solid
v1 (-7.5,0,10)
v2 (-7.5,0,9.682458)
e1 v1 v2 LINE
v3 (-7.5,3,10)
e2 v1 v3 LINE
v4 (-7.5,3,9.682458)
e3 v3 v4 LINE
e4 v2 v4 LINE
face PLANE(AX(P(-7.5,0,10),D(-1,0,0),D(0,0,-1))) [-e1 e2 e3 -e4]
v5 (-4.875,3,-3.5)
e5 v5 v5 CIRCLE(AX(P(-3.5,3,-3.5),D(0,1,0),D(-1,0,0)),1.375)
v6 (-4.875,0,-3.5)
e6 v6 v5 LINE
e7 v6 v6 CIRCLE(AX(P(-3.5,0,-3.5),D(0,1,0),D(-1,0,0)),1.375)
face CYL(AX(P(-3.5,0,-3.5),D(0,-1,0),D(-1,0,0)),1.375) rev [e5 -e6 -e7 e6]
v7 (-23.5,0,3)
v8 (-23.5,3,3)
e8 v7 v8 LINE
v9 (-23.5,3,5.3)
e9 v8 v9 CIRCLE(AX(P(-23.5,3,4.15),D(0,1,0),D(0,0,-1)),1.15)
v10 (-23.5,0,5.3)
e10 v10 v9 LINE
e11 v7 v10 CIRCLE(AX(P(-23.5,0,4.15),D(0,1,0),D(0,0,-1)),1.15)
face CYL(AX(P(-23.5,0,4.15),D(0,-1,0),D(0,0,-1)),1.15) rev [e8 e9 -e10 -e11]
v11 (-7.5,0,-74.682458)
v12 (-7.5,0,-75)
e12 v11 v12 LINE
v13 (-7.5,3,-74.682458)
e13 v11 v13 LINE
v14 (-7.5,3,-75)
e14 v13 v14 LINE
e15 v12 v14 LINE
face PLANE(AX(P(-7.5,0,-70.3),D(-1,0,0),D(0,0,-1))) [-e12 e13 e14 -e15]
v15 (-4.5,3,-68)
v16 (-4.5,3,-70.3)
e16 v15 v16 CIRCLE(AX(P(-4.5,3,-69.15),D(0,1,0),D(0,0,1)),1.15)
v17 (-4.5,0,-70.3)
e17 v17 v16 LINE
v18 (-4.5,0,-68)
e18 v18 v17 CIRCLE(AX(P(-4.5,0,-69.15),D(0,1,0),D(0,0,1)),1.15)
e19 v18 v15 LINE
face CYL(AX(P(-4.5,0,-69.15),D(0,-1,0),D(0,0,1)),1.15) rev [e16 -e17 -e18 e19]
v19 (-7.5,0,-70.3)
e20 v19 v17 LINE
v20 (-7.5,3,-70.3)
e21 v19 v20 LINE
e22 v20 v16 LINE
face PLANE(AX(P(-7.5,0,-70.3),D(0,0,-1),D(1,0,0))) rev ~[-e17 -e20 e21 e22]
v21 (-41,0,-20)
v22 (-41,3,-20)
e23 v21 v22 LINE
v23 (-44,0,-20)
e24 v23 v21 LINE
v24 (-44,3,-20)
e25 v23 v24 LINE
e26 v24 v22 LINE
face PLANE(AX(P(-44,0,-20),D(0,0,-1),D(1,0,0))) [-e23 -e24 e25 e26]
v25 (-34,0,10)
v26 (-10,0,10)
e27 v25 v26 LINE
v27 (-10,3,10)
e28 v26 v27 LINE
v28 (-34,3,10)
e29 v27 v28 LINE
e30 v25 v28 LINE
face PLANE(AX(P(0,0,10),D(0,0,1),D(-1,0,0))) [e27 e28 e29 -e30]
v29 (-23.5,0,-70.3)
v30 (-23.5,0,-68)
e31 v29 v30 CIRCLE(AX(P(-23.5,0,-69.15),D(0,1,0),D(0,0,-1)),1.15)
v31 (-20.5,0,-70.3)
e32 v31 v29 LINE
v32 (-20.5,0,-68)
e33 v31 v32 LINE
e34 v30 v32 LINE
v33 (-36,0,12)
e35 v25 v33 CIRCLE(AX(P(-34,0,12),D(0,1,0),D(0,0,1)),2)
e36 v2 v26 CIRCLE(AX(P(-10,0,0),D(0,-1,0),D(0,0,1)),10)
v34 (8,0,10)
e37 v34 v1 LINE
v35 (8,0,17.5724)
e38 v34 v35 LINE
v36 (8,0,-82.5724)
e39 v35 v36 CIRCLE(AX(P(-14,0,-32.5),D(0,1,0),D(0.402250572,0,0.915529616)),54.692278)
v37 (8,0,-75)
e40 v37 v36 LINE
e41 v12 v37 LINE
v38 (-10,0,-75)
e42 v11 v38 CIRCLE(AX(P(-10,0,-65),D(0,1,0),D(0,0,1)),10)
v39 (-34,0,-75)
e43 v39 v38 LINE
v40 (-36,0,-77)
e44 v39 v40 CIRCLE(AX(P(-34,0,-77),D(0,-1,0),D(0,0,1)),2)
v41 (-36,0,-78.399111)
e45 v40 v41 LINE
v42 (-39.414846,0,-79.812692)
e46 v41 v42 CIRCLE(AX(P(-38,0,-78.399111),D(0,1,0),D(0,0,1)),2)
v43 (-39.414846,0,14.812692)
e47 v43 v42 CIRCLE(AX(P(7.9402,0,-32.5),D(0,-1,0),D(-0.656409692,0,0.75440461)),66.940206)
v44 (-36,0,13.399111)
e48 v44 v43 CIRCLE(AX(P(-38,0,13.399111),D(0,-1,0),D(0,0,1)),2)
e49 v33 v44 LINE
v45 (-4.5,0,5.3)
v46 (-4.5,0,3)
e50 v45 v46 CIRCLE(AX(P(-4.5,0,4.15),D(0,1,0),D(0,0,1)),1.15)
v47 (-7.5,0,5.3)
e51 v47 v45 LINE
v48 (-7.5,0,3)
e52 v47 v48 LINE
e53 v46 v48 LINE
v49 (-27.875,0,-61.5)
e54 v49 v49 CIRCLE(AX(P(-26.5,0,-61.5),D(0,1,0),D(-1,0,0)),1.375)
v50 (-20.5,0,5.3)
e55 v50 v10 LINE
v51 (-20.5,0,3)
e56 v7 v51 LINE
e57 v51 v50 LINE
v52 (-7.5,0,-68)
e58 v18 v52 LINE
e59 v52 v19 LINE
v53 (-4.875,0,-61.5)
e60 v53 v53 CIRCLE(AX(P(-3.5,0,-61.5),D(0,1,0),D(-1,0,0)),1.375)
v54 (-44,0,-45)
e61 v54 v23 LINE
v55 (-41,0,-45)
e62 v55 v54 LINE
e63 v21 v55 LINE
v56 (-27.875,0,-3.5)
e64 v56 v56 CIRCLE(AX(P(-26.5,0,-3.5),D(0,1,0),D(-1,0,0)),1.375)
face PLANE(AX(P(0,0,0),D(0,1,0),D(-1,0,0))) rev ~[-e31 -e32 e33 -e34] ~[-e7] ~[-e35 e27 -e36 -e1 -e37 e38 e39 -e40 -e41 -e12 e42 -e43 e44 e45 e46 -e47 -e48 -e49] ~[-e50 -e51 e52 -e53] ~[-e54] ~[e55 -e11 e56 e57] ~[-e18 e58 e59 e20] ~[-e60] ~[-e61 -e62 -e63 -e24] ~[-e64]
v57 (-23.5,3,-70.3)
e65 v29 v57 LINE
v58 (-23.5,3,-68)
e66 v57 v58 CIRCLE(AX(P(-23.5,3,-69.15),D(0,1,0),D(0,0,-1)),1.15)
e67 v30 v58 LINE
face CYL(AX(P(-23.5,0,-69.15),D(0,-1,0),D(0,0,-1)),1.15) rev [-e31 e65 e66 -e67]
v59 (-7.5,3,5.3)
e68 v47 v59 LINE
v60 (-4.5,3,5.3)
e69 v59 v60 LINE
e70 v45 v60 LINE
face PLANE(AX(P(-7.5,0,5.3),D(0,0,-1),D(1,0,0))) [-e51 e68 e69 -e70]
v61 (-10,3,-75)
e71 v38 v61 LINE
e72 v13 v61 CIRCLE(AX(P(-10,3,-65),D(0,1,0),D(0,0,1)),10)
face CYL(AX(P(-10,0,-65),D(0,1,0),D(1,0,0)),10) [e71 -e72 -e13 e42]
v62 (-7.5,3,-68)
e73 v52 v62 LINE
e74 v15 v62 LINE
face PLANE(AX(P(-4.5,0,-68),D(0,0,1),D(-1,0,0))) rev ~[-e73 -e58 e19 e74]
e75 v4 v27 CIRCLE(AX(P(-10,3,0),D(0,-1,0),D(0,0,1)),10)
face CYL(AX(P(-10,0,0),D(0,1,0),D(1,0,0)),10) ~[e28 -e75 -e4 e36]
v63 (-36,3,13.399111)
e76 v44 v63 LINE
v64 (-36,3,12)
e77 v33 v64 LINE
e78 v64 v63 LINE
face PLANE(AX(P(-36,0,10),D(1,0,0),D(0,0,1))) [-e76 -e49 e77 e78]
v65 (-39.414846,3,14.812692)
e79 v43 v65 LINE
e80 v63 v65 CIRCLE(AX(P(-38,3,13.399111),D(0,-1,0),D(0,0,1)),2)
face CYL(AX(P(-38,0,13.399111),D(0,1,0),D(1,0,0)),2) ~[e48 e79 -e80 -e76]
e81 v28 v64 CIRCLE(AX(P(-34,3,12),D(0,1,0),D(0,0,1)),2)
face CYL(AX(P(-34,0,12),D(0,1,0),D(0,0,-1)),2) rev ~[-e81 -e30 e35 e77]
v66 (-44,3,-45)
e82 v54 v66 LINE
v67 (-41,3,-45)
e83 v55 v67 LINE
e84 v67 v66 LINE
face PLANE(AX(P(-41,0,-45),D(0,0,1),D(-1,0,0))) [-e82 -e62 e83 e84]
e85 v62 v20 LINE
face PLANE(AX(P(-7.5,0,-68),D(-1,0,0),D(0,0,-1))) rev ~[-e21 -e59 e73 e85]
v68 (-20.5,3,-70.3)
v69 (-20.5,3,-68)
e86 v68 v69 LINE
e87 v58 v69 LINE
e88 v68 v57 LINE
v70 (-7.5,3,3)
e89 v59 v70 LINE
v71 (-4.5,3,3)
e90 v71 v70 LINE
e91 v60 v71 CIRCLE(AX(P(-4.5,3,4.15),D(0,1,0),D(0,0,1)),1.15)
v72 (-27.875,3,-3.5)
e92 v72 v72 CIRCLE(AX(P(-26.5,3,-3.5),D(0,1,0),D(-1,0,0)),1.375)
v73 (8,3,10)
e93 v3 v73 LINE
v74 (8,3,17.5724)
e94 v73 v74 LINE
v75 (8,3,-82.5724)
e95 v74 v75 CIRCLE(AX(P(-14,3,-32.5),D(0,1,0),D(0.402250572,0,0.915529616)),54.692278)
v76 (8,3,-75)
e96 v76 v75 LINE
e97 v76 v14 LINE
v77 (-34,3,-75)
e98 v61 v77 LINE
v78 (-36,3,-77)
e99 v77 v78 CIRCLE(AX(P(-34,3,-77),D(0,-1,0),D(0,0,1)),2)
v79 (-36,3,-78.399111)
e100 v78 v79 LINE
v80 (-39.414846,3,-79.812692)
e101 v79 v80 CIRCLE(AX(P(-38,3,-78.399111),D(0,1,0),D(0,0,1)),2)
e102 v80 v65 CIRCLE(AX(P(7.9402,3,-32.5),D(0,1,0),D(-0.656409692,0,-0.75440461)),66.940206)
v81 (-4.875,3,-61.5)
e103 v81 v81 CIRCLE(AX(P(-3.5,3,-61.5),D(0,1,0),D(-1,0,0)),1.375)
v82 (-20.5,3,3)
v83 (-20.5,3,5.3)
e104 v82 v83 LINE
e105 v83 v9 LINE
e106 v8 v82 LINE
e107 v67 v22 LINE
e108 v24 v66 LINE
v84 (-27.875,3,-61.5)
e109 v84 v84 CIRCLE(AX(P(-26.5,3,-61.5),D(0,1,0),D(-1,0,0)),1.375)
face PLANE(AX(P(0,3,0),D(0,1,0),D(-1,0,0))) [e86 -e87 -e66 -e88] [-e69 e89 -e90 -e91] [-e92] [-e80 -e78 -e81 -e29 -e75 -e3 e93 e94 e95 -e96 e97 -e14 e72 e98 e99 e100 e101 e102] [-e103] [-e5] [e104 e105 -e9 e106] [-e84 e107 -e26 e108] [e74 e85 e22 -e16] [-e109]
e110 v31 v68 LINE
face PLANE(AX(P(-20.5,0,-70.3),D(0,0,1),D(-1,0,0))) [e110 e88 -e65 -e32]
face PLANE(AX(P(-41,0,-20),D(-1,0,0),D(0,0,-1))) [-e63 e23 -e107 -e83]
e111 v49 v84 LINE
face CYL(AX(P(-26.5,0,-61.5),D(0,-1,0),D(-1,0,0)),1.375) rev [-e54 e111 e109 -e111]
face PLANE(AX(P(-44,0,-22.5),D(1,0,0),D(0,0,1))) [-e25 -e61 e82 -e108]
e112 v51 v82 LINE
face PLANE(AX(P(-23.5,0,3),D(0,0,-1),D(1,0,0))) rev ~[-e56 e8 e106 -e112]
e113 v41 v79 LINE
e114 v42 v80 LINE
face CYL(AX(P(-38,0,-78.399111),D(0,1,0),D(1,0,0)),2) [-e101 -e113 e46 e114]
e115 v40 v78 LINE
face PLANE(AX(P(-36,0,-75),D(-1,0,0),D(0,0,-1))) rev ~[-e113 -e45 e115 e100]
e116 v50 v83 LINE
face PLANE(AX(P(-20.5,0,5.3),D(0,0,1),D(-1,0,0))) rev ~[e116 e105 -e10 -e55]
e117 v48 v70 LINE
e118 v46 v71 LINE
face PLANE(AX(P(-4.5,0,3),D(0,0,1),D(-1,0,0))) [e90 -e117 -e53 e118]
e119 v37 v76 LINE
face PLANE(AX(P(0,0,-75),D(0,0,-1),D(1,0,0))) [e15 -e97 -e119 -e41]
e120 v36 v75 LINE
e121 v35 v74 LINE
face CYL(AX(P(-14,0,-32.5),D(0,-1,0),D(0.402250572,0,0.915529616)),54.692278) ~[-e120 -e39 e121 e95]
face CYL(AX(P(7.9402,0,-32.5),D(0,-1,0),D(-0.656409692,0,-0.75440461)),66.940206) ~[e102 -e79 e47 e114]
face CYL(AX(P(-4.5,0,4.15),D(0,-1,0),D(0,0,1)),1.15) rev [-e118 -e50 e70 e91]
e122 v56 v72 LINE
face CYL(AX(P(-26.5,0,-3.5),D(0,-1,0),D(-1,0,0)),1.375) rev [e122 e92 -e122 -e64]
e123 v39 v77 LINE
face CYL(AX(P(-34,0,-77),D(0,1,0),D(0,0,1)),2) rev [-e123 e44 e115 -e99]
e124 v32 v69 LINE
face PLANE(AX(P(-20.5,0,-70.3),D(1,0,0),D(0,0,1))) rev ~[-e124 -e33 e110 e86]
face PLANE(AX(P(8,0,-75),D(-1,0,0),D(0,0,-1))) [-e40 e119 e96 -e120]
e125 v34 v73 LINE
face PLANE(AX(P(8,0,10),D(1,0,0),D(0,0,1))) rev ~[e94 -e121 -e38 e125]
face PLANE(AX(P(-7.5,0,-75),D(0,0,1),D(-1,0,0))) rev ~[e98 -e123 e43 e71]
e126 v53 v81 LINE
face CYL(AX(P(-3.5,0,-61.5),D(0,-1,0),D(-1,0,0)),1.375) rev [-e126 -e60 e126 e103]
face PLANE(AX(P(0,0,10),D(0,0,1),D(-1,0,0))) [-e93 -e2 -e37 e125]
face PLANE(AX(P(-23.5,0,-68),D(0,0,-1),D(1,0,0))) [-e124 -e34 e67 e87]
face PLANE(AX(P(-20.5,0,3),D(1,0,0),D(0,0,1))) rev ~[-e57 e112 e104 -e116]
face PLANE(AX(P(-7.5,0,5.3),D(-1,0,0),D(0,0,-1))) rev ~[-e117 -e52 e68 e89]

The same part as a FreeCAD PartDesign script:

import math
import FreeCAD as App
import Part
import Sketcher

V = App.Vector


def edges_at(feature, points):
    """Names of the edges that pass closest to the given points."""
    edges = feature.Shape.Edges
    near = lambda p: min(range(len(edges)), key=lambda i: edges[i].distToShape(Part.Vertex(*p))[0])
    return sorted({f"Edge{near(p) + 1}" for p in points})


def add_polygon(sketch, points):
    """Adds a closed chain of lines whose ends are joined by coincident constraints."""
    first, n = sketch.GeometryCount, len(points)
    for a, b in zip(points, points[1:] + points[:1]):
        sketch.addGeometry(Part.LineSegment(App.Vector(*a, 0), App.Vector(*b, 0)), False)
    for i in range(n):
        sketch.addConstraint(Sketcher.Constraint("Coincident", first + i, 2, first + (i + 1) % n, 1))

doc = App.newDocument("Part")
body = doc.addObject("PartDesign::Body", "Body")

# Sketch on XZ plane
sketch1 = body.newObject("Sketcher::SketchObject", "Sketch")
sketch1.AttachmentSupport = (doc.getObject("XZ_Plane"), [""])
sketch1.MapMode = "FlatFace"
sketch1.addGeometry(Part.LineSegment(V(0, 10, 0), V(0, -75, 0)), False)  # 0
sketch1.addGeometry(Part.LineSegment(V(0, -75, 0), V(-36, -75, 0)), False)  # 1
sketch1.addGeometry(Part.LineSegment(V(-36, -75, 0), V(-36, -83, 0)), False)  # 2
sketch1.addGeometry(Part.ArcOfCircle(Part.Circle(V(7.9, -32.5, 0), V(0, 0, 1), 66.9), math.radians(131), math.radians(229)), False)  # 3
sketch1.addGeometry(Part.LineSegment(V(-36, 18, 0), V(-36, 10, 0)), False)  # 4
sketch1.addGeometry(Part.LineSegment(V(-36, 10, 0), V(0, 10, 0)), False)  # 5
sketch1.addGeometry(Part.LineSegment(V(-4.5, 5.3, 0), V(-7.5, 5.3, 0)), False)  # 6
sketch1.addGeometry(Part.LineSegment(V(-7.5, 5.3, 0), V(-7.5, 3, 0)), False)  # 7
sketch1.addGeometry(Part.LineSegment(V(-7.5, 3, 0), V(-4.5, 3, 0)), False)  # 8
sketch1.addGeometry(Part.ArcOfCircle(Part.Circle(V(-4.5, 4.2, 0), V(0, 0, 1), 1.1), math.radians(-90), math.radians(90)), False)  # 9
sketch1.addGeometry(Part.LineSegment(V(-20.5, 3, 0), V(-20.5, 5.3, 0)), False)  # 10
sketch1.addGeometry(Part.LineSegment(V(-20.5, 5.3, 0), V(-23.5, 5.3, 0)), False)  # 11
sketch1.addGeometry(Part.ArcOfCircle(Part.Circle(V(-23.5, 4.2, 0), V(0, 0, 1), 1.2), math.radians(90), math.radians(270)), False)  # 12
sketch1.addGeometry(Part.LineSegment(V(-23.5, 3, 0), V(-20.5, 3, 0)), False)  # 13
sketch1.addGeometry(Part.Circle(V(-3.5, -3.5, 0), V(0, 0, 1), 1.4), False)  # 14
sketch1.addGeometry(Part.Circle(V(-26.5, -3.5, 0), V(0, 0, 1), 1.4), False)  # 15
sketch1.addGeometry(Part.Circle(V(-3.5, -61.5, 0), V(0, 0, 1), 1.4), False)  # 16
add_polygon(sketch1, [(-44, -20), (-44, -22.5), (-41, -22.5), (-41, -20)])  # lines 17-20
sketch1.addGeometry(Part.Circle(V(-26.5, -61.5, 0), V(0, 0, 1), 1.4), False)  # 21
sketch1.addGeometry(Part.LineSegment(V(-20.5, -70.3, 0), V(-20.5, -68, 0)), False)  # 22
sketch1.addGeometry(Part.LineSegment(V(-20.5, -68, 0), V(-23.5, -68, 0)), False)  # 23
sketch1.addGeometry(Part.ArcOfCircle(Part.Circle(V(-23.5, -69.2, 0), V(0, 0, 1), 1.1), math.radians(90), math.radians(270)), False)  # 24
sketch1.addGeometry(Part.LineSegment(V(-23.5, -70.3, 0), V(-20.5, -70.3, 0)), False)  # 25
sketch1.addGeometry(Part.LineSegment(V(-7.5, -68, 0), V(-7.5, -70.3, 0)), False)  # 26
sketch1.addGeometry(Part.LineSegment(V(-7.5, -70.3, 0), V(-4.5, -70.3, 0)), False)  # 27
sketch1.addGeometry(Part.ArcOfCircle(Part.Circle(V(-4.5, -69.2, 0), V(0, 0, 1), 1.2), math.radians(-90), math.radians(90)), False)  # 28
sketch1.addGeometry(Part.LineSegment(V(-4.5, -68, 0), V(-7.5, -68, 0)), False)  # 29
add_polygon(sketch1, [(-41, -45), (-41, -42.5), (-44, -42.5), (-44, -45)])  # lines 30-33
sketch1.addConstraint([
    Sketcher.Constraint("Coincident", 0, 2, 1, 1),
    Sketcher.Constraint("Coincident", 1, 2, 2, 1),
    Sketcher.Constraint("Coincident", 2, 2, 3, 2),
    Sketcher.Constraint("Coincident", 3, 1, 4, 1),
    Sketcher.Constraint("Coincident", 4, 2, 5, 1),
    Sketcher.Constraint("Coincident", 5, 2, 0, 1),
    Sketcher.Constraint("Coincident", 6, 2, 7, 1),
    Sketcher.Constraint("Coincident", 7, 2, 8, 1),
    Sketcher.Constraint("Tangent", 8, 2, 9, 1),
    Sketcher.Constraint("Tangent", 9, 2, 6, 1),
    Sketcher.Constraint("Coincident", 10, 2, 11, 1),
    Sketcher.Constraint("Tangent", 11, 2, 12, 1),
    Sketcher.Constraint("Tangent", 12, 2, 13, 1),
    Sketcher.Constraint("Coincident", 13, 2, 10, 1),
    Sketcher.Constraint("Coincident", 22, 2, 23, 1),
    Sketcher.Constraint("Tangent", 23, 2, 24, 1),
    Sketcher.Constraint("Tangent", 24, 2, 25, 1),
    Sketcher.Constraint("Coincident", 25, 2, 22, 1),
    Sketcher.Constraint("Coincident", 26, 2, 27, 1),
    Sketcher.Constraint("Tangent", 27, 2, 28, 1),
    Sketcher.Constraint("Tangent", 28, 2, 29, 1),
    Sketcher.Constraint("Coincident", 29, 2, 26, 1),
    Sketcher.Constraint("Vertical", 0),
    Sketcher.Constraint("Horizontal", 1),
    Sketcher.Constraint("Vertical", 2),
    Sketcher.Constraint("Vertical", 4),
    Sketcher.Constraint("Horizontal", 5),
    Sketcher.Constraint("Horizontal", 6),
    Sketcher.Constraint("Vertical", 7),
    Sketcher.Constraint("Horizontal", 8),
    Sketcher.Constraint("Vertical", 10),
    Sketcher.Constraint("Horizontal", 11),
    Sketcher.Constraint("Horizontal", 13),
    Sketcher.Constraint("Vertical", 17),
    Sketcher.Constraint("Horizontal", 18),
    Sketcher.Constraint("Vertical", 19),
    Sketcher.Constraint("Horizontal", 20),
    Sketcher.Constraint("Vertical", 22),
    Sketcher.Constraint("Horizontal", 23),
    Sketcher.Constraint("Horizontal", 25),
    Sketcher.Constraint("Vertical", 26),
    Sketcher.Constraint("Horizontal", 27),
    Sketcher.Constraint("Horizontal", 29),
    Sketcher.Constraint("Vertical", 30),
    Sketcher.Constraint("Horizontal", 31),
    Sketcher.Constraint("Vertical", 32),
    Sketcher.Constraint("Horizontal", 33),
    Sketcher.Constraint("Equal", 9, 12),
    Sketcher.Constraint("Equal", 14, 15),
    Sketcher.Constraint("Equal", 15, 16),
    Sketcher.Constraint("Equal", 16, 21),
    Sketcher.Constraint("Equal", 12, 24),
    Sketcher.Constraint("Equal", 24, 28),
    Sketcher.Constraint("PointOnObject", 0, 2, -2),
    Sketcher.Constraint("Horizontal", 9, 3, 12, 3),
    Sketcher.Constraint("Horizontal", 14, 3, 15, 3),
    Sketcher.Constraint("Horizontal", 16, 3, 21, 3),
    Sketcher.Constraint("Horizontal", 24, 3, 28, 3),
    Sketcher.Constraint("Vertical", 14, 3, 16, 3),
    Sketcher.Constraint("Vertical", 15, 3, 21, 3),
    Sketcher.Constraint("Vertical", 12, 3, 24, 3),
    Sketcher.Constraint("Vertical", 9, 3, 28, 3),
    Sketcher.Constraint("Vertical", 2, 2, 3, 1),
    Sketcher.Constraint("Vertical", 13, 2, 22, 2),
    Sketcher.Constraint("Vertical", 7, 2, 26, 2),
    Sketcher.Constraint("Vertical", 19, 2, 30, 2),
    Sketcher.Constraint("Vertical", 20, 2, 31, 2),
    Sketcher.Constraint("Equal", 8, 11),
    Sketcher.Constraint("Equal", 13, 18),
    Sketcher.Constraint("Equal", 2, 4),
    Sketcher.Constraint("Equal", 19, 30),
    Sketcher.Constraint("Diameter", 14, 2.75),
    Sketcher.Constraint("DistanceX", 1, 2, 1, 1, 36.0),
    Sketcher.Constraint("DistanceX", 6, 2, 6, 1, 3.0),
    Sketcher.Constraint("DistanceY", 2, 2, 2, 1, 8.0),
    Sketcher.Constraint("Radius", 9, 1.15),
    Sketcher.Constraint("DistanceY", -1, 1, 4, 2, 10.0),
    Sketcher.Constraint("DistanceY", -1, 1, 7, 2, 3.0),
    Sketcher.Constraint("DistanceY", 19, 2, -1, 1, 20.0),
    Sketcher.Constraint("DistanceX", 12, 3, 14, 3, 20.0),
    Sketcher.Constraint("DistanceX", 15, 3, 12, 3, 3.0),
    Sketcher.Constraint("DistanceY", 16, 3, 14, 3, 58.0),
    Sketcher.Constraint("DistanceX", 10, 2, 6, 2, 13.0),
    Sketcher.Constraint("DistanceX", 17, 2, 4, 2, 8.0),
    Sketcher.Constraint("DistanceY", 30, 2, 18, 2, 20.0),
    Sketcher.Constraint("DistanceX", 14, 3, -1, 1, 3.5),
    Sketcher.Constraint("DistanceY", 14, 3, -1, 1, 3.5),
    Sketcher.Constraint("DistanceY", 0, 2, 0, 1, 85.0),
    Sketcher.Constraint("DistanceY", 17, 2, 17, 1, 2.5),
    Sketcher.Constraint("DistanceY", 22, 2, -1, 1, 68.0),
    Sketcher.Constraint("Radius", 3, 66.9402),
])
pad1 = body.newObject("PartDesign::Pad", "Pad")
pad1.Profile = sketch1
pad1.Length = 3
pad1.Reversed = True
doc.recompute()

fillet = body.newObject("PartDesign::Fillet", "Fillet")
fillet.Base = (pad1, edges_at(pad1, [(0, 1.5, -75), (0, 1.5, 10)]))
fillet.Radius = 10

# Sketch on XZ plane
sketch2 = body.newObject("Sketcher::SketchObject", "Sketch001")
sketch2.AttachmentSupport = (doc.getObject("XZ_Plane"), [""])
sketch2.MapMode = "FlatFace"
add_polygon(sketch2, [(-44, -22.5), (-41, -22.5), (-41, -42.5), (-44, -42.5)])  # lines 0-3
sketch2.addConstraint([
    Sketcher.Constraint("Horizontal", 0),
    Sketcher.Constraint("Vertical", 1),
    Sketcher.Constraint("Horizontal", 2),
    Sketcher.Constraint("Vertical", 3),
    Sketcher.Constraint("DistanceX", 0, 1, 0, 2, 3.0),
    Sketcher.Constraint("DistanceY", 1, 2, 1, 1, 20.0),
    Sketcher.Constraint("DistanceX", 0, 2, -1, 1, 41.0),
    Sketcher.Constraint("DistanceY", 0, 2, -1, 1, 22.5),
])
pocket1 = body.newObject("PartDesign::Pocket", "Pocket")
pocket1.Profile = sketch2
pocket1.Length = 3
doc.recompute()

fillet2 = body.newObject("PartDesign::Fillet", "Fillet001")
fillet2.Base = (pocket1, edges_at(pocket1, [
    (-36, 1.5, -83),
    (-36, 1.5, 18),
    (-36, 1.5, 10),
    (-36, 1.5, -75),
]))
fillet2.Radius = 2

# Sketch on XZ plane
sketch3 = body.newObject("Sketcher::SketchObject", "Sketch002")
sketch3.AttachmentSupport = (doc.getObject("XZ_Plane"), [""])
sketch3.MapMode = "FlatFace"
sketch3.addGeometry([
    Part.LineSegment(V(0, 0, 0), V(-7.5, 0, 0)),  # 0
    Part.LineSegment(V(-7.5, 0, 0), V(-7.5, 3, 0)),  # 1
    Part.LineSegment(V(-7.5, 3, 0), V(-4.5, 3, 0)),  # 2
    Part.ArcOfCircle(Part.Circle(V(-4.5, 4.2, 0), V(0, 0, 1), 1.1), math.radians(-90), math.radians(90)),  # 3
    Part.LineSegment(V(-4.5, 5.3, 0), V(-7.5, 5.3, 0)),  # 4
    Part.LineSegment(V(-7.5, 5.3, 0), V(-7.5, 10, 0)),  # 5
    Part.LineSegment(V(-7.5, 10, 0), V(8, 10, 0)),  # 6
    Part.LineSegment(V(8, 10, 0), V(8, 17.6, 0)),  # 7
    Part.ArcOfCircle(Part.Circle(V(-14, -32.5, 0), V(0, 0, 1), 54.7), math.radians(-66), math.radians(66)),  # 8
    Part.LineSegment(V(8, -82.6, 0), V(8, -75, 0)),  # 9
    Part.LineSegment(V(8, -75, 0), V(-7.5, -75, 0)),  # 10
    Part.LineSegment(V(-7.5, -75, 0), V(-7.5, -70.3, 0)),  # 11
    Part.LineSegment(V(-7.5, -70.3, 0), V(-4.5, -70.3, 0)),  # 12
    Part.ArcOfCircle(Part.Circle(V(-4.5, -69.2, 0), V(0, 0, 1), 1.2), math.radians(-90), math.radians(90)),  # 13
    Part.LineSegment(V(-4.5, -68, 0), V(-7.5, -68, 0)),  # 14
    Part.LineSegment(V(-7.5, -68, 0), V(-7.5, -65, 0)),  # 15
    Part.LineSegment(V(-7.5, -65, 0), V(0, -65, 0)),  # 16
    Part.LineSegment(V(0, -65, 0), V(0, 0, 0)),  # 17
], False)
sketch3.addConstraint([
    Sketcher.Constraint("Coincident", 0, 2, 1, 1),
    Sketcher.Constraint("Coincident", 1, 2, 2, 1),
    Sketcher.Constraint("Tangent", 2, 2, 3, 1),
    Sketcher.Constraint("Tangent", 3, 2, 4, 1),
    Sketcher.Constraint("Coincident", 4, 2, 5, 1),
    Sketcher.Constraint("Coincident", 5, 2, 6, 1),
    Sketcher.Constraint("Coincident", 6, 2, 7, 1),
    Sketcher.Constraint("Coincident", 7, 2, 8, 2),
    Sketcher.Constraint("Coincident", 8, 1, 9, 1),
    Sketcher.Constraint("Coincident", 9, 2, 10, 1),
    Sketcher.Constraint("Coincident", 10, 2, 11, 1),
    Sketcher.Constraint("Coincident", 11, 2, 12, 1),
    Sketcher.Constraint("Tangent", 12, 2, 13, 1),
    Sketcher.Constraint("Tangent", 13, 2, 14, 1),
    Sketcher.Constraint("Coincident", 14, 2, 15, 1),
    Sketcher.Constraint("Coincident", 15, 2, 16, 1),
    Sketcher.Constraint("Coincident", 16, 2, 17, 1),
    Sketcher.Constraint("Coincident", 17, 2, 0, 1),
    Sketcher.Constraint("Horizontal", 0),
    Sketcher.Constraint("Vertical", 1),
    Sketcher.Constraint("Horizontal", 2),
    Sketcher.Constraint("Horizontal", 4),
    Sketcher.Constraint("Vertical", 5),
    Sketcher.Constraint("Horizontal", 6),
    Sketcher.Constraint("Vertical", 7),
    Sketcher.Constraint("Vertical", 9),
    Sketcher.Constraint("Horizontal", 10),
    Sketcher.Constraint("Vertical", 11),
    Sketcher.Constraint("Horizontal", 12),
    Sketcher.Constraint("Horizontal", 14),
    Sketcher.Constraint("Vertical", 15),
    Sketcher.Constraint("Horizontal", 16),
    Sketcher.Constraint("Vertical", 17),
    Sketcher.Constraint("Coincident", 17, 2, -1, 1),
    Sketcher.Constraint("Equal", 3, 13),
    Sketcher.Constraint("Vertical", 3, 3, 13, 3),
    Sketcher.Constraint("Vertical", 1, 2, 4, 2),
    Sketcher.Constraint("Vertical", 7, 2, 8, 1),
    Sketcher.Constraint("Vertical", 5, 2, 10, 2),
    Sketcher.Constraint("Vertical", 11, 2, 14, 2),
    Sketcher.Constraint("Equal", 14, 1),
    Sketcher.Constraint("Equal", 7, 9),
    Sketcher.Constraint("Equal", 5, 11),
    Sketcher.Constraint("Equal", 1, 15),
    Sketcher.Constraint("DistanceX", 2, 1, 2, 2, 3.0),
    Sketcher.Constraint("DistanceY", 17, 1, 17, 2, 65.0),
    Sketcher.Constraint("Radius", 3, 1.15),
    Sketcher.Constraint("DistanceX", 0, 2, 0, 1, 7.5),
    Sketcher.Constraint("DistanceY", -1, 1, 5, 2, 10.0),
    Sketcher.Constraint("DistanceX", -1, 1, 6, 2, 8.0),
    Sketcher.Constraint("Radius", 8, 54.6923),
    Sketcher.Constraint("DistanceX", 8, 3, -1, 1, 14.0),
])
pad2 = body.newObject("PartDesign::Pad", "Pad001")
pad2.Profile = sketch3
pad2.Length = 3
pad2.Reversed = True

doc.recompute()
